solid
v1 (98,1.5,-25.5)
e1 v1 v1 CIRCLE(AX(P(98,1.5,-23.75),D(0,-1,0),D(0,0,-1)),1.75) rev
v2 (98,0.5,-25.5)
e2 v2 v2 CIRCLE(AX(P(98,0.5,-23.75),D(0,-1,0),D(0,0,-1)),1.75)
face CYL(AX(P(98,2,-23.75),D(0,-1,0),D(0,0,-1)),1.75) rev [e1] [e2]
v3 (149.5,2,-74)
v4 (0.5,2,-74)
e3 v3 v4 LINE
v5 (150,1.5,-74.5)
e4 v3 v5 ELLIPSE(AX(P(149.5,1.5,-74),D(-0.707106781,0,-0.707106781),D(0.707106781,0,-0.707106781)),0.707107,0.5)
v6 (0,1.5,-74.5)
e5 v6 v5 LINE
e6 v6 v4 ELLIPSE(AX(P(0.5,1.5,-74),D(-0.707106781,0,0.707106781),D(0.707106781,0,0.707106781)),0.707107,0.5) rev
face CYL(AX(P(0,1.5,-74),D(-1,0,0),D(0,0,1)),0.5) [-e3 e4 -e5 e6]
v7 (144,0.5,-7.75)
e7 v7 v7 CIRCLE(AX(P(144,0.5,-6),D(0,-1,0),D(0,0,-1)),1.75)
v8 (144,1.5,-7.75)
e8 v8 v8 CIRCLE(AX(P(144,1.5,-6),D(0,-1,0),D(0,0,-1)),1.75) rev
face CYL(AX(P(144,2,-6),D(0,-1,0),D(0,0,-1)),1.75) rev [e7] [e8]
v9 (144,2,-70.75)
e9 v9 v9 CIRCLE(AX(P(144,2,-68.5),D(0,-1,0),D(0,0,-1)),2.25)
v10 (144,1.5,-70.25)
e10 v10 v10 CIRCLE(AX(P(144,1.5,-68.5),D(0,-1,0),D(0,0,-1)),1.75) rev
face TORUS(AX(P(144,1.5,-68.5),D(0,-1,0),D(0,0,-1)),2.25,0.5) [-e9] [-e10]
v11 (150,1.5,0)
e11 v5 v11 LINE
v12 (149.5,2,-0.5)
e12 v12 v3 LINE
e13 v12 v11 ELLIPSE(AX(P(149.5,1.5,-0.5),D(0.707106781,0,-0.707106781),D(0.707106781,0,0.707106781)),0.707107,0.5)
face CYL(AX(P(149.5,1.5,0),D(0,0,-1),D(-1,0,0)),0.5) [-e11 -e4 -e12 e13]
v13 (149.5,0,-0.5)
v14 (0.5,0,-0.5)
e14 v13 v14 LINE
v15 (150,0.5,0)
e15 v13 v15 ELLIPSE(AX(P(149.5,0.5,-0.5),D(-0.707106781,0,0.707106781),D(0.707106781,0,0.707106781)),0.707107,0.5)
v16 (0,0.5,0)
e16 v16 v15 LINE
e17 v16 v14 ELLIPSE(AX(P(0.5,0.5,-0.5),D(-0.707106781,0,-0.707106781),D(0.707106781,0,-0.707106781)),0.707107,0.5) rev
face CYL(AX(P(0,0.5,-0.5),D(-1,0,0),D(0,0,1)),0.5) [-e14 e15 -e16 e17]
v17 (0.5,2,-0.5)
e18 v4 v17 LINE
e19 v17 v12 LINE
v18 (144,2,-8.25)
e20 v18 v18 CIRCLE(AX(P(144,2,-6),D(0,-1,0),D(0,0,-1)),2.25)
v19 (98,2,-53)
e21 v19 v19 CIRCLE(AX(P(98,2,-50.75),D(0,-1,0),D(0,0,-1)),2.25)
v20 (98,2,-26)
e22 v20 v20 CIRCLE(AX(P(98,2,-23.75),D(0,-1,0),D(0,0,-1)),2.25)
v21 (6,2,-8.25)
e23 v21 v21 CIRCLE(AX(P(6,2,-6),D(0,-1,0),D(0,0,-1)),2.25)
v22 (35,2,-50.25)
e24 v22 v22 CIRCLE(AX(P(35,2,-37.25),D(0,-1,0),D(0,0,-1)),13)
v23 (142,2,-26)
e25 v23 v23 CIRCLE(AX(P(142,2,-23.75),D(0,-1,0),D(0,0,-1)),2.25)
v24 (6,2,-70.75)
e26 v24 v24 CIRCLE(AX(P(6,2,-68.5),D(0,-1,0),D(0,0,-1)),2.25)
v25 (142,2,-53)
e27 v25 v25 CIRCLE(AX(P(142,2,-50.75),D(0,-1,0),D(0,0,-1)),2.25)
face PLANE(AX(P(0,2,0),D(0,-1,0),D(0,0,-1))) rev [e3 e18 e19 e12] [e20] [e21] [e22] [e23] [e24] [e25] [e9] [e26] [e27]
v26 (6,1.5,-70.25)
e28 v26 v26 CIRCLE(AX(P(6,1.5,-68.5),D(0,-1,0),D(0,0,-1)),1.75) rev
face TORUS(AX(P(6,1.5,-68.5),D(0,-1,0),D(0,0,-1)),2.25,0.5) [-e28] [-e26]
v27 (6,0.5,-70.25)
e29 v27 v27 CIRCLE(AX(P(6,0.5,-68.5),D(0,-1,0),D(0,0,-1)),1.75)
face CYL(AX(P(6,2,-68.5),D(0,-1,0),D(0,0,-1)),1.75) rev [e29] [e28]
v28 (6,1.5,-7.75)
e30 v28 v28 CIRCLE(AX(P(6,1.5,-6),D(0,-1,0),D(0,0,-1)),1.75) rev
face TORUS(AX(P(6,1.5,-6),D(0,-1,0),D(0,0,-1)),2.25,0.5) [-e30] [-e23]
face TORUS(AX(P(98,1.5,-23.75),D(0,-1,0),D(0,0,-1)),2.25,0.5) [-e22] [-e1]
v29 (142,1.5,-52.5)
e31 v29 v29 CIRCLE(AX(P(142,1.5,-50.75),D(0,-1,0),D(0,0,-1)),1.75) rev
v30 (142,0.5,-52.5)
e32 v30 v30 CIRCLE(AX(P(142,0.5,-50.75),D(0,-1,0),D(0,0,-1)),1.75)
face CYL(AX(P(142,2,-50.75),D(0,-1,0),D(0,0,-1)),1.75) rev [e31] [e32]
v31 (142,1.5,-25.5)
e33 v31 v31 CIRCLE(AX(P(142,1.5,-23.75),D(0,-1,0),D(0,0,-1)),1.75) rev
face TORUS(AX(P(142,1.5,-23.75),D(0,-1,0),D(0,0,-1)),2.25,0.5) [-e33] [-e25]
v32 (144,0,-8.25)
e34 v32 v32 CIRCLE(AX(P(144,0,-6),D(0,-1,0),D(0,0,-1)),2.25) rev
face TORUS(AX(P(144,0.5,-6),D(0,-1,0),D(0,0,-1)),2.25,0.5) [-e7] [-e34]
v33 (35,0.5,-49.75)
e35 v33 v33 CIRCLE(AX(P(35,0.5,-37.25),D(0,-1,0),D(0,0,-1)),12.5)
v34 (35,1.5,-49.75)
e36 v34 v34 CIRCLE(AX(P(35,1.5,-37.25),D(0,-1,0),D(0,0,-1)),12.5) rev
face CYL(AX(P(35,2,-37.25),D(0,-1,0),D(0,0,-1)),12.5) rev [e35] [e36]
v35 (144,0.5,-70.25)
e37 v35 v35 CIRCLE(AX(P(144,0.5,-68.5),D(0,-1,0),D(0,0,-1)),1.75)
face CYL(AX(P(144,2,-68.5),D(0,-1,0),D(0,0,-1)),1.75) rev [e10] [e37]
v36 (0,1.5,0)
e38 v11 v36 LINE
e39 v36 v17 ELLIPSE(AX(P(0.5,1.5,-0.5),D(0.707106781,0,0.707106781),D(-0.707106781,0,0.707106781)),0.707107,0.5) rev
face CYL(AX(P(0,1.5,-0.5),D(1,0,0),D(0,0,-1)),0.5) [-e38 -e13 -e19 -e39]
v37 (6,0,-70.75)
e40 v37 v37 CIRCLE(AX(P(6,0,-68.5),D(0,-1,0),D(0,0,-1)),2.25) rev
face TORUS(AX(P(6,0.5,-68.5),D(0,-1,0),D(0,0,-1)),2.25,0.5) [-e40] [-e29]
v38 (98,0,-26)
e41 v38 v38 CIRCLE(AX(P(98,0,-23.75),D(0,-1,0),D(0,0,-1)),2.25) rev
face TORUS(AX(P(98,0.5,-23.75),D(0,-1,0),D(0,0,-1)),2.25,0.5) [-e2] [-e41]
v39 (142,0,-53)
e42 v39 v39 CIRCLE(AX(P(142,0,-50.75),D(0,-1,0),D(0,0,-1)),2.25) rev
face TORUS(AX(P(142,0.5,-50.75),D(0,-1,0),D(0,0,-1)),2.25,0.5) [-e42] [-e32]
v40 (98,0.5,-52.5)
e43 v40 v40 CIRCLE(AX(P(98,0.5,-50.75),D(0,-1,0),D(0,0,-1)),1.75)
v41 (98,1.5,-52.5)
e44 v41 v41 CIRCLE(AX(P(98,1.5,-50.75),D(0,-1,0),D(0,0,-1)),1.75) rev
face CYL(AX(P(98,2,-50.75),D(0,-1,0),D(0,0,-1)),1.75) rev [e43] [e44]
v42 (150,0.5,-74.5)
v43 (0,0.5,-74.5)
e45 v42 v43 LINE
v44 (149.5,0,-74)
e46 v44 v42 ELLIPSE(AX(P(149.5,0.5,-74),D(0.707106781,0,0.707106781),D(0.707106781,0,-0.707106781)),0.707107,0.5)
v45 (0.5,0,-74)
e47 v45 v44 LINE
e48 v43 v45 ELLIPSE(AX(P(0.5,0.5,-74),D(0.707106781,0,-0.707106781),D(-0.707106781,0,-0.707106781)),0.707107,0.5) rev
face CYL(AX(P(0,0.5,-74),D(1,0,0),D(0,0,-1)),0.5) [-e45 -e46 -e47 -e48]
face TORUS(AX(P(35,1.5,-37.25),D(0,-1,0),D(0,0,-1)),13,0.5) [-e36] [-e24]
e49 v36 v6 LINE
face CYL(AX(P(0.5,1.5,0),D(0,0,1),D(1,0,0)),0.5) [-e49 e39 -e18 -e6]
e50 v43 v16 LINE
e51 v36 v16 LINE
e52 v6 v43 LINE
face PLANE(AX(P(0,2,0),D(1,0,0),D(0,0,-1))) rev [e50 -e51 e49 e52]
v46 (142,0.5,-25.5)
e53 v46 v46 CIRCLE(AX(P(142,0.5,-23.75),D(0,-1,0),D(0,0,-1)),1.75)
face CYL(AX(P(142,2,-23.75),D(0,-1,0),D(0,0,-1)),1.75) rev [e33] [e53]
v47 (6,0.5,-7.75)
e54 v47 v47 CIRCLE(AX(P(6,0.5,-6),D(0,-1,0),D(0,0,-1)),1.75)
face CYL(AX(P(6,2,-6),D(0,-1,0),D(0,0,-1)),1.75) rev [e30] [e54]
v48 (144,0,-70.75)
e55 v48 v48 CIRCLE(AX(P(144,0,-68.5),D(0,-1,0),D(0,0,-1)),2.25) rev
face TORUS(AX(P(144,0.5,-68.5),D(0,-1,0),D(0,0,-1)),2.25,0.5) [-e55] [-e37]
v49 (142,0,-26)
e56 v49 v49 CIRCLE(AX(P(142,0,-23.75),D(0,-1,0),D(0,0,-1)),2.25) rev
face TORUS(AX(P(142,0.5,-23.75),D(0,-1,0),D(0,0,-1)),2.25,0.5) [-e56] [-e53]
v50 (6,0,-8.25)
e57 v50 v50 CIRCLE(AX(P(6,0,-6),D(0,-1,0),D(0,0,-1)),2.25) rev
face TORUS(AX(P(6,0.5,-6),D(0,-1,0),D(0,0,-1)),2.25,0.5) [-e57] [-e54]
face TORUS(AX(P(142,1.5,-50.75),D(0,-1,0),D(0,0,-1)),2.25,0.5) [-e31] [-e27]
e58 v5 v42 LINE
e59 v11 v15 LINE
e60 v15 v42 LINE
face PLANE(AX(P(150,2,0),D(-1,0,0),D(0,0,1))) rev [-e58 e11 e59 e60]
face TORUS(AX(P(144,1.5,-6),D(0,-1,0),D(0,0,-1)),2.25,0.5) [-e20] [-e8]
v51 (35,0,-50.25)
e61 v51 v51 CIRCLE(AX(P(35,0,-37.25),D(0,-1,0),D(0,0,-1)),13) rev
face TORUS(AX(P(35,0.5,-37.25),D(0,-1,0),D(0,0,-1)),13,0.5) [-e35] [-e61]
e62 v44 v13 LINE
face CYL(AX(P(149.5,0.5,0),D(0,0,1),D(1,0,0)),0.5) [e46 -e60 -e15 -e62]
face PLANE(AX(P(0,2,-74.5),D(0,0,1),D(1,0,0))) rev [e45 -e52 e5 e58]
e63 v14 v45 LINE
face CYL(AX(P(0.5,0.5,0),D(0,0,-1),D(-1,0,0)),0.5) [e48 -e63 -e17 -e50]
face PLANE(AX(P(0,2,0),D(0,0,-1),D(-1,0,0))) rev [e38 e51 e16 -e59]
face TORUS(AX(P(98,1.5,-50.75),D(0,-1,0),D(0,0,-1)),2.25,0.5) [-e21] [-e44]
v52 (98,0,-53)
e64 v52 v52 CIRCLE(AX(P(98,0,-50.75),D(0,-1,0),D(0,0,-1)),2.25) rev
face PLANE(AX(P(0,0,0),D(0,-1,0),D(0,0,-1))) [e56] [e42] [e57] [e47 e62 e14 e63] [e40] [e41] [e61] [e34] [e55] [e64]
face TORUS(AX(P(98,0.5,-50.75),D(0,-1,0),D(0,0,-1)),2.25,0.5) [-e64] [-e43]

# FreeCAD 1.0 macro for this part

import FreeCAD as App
import Part
import Sketcher
from FreeCAD import Vector
Q = App.Units.Quantity


def edges_at(feature, points):
    """Names of the edges that pass closest to the given points."""
    edges = feature.Shape.Edges
    near = lambda p: min(range(len(edges)), key=lambda i: edges[i].distToShape(Part.Vertex(*p))[0])
    return sorted({f"Edge{near(p) + 1}" for p in points})

doc = App.newDocument("Part")
body = doc.addObject("PartDesign::Body", "Body")

# Sketch on XZ plane
sketch1 = body.newObject("Sketcher::SketchObject", "Sketch")
sketch1.AttachmentSupport = (doc.getObject("XZ_Plane"), [""])
sketch1.MapMode = "FlatFace"
sketch1.addGeometry(Part.LineSegment(Vector(0, -74.5, 0), Vector(0, 0, 0)), False)
sketch1.addGeometry(Part.LineSegment(Vector(0, 0, 0), Vector(150, 0, 0)), False)
sketch1.addGeometry(Part.LineSegment(Vector(150, 0, 0), Vector(150, -74.5, 0)), False)
sketch1.addGeometry(Part.LineSegment(Vector(150, -74.5, 0), Vector(0, -74.5, 0)), False)
sketch1.addGeometry(Part.Circle(Vector(6, -6, 0), Vector(0, 0, 1), 1.8), False)
sketch1.addGeometry(Part.Circle(Vector(144, -6, 0), Vector(0, 0, 1), 1.8), False)
sketch1.addGeometry(Part.Circle(Vector(98, -23.8, 0), Vector(0, 0, 1), 1.8), False)
sketch1.addGeometry(Part.Circle(Vector(142, -23.8, 0), Vector(0, 0, 1), 1.8), False)
sketch1.addGeometry(Part.Circle(Vector(35, -37.2, 0), Vector(0, 0, 1), 12.5), False)
sketch1.addGeometry(Part.Circle(Vector(6, -68.5, 0), Vector(0, 0, 1), 1.8), False)
sketch1.addGeometry(Part.Circle(Vector(98, -50.8, 0), Vector(0, 0, 1), 1.8), False)
sketch1.addGeometry(Part.Circle(Vector(142, -50.8, 0), Vector(0, 0, 1), 1.8), False)
sketch1.addGeometry(Part.Circle(Vector(144, -68.5, 0), Vector(0, 0, 1), 1.8), False)
sketch1.addConstraint(Sketcher.Constraint("Coincident", 0, 2, 1, 1))
sketch1.addConstraint(Sketcher.Constraint("Coincident", 1, 2, 2, 1))
sketch1.addConstraint(Sketcher.Constraint("Coincident", 2, 2, 3, 1))
sketch1.addConstraint(Sketcher.Constraint("Coincident", 3, 2, 0, 1))
sketch1.addConstraint(Sketcher.Constraint("Vertical", 0))
sketch1.addConstraint(Sketcher.Constraint("Horizontal", 1))
sketch1.addConstraint(Sketcher.Constraint("Vertical", 2))
sketch1.addConstraint(Sketcher.Constraint("Horizontal", 3))
sketch1.addConstraint(Sketcher.Constraint("Coincident", 0, 2, -1, 1))
sketch1.addConstraint(Sketcher.Constraint("Equal", 4, 5))
sketch1.addConstraint(Sketcher.Constraint("Equal", 5, 6))
sketch1.addConstraint(Sketcher.Constraint("Equal", 6, 7))
sketch1.addConstraint(Sketcher.Constraint("Equal", 7, 9))
sketch1.addConstraint(Sketcher.Constraint("Equal", 9, 10))
sketch1.addConstraint(Sketcher.Constraint("Equal", 10, 11))
sketch1.addConstraint(Sketcher.Constraint("Equal", 11, 12))
sketch1.addConstraint(Sketcher.Constraint("Horizontal", 4, 3, 5, 3))
sketch1.addConstraint(Sketcher.Constraint("Horizontal", 6, 3, 7, 3))
sketch1.addConstraint(Sketcher.Constraint("Horizontal", 10, 3, 11, 3))
sketch1.addConstraint(Sketcher.Constraint("Horizontal", 9, 3, 12, 3))
sketch1.addConstraint(Sketcher.Constraint("Vertical", 4, 3, 9, 3))
sketch1.addConstraint(Sketcher.Constraint("Vertical", 6, 3, 10, 3))
sketch1.addConstraint(Sketcher.Constraint("Vertical", 7, 3, 11, 3))
sketch1.addConstraint(Sketcher.Constraint("Vertical", 5, 3, 12, 3))
sketch1.addConstraint(Sketcher.Constraint("Diameter", 8, Q("25 mm")))
sketch1.addConstraint(Sketcher.Constraint("Diameter", 4, Q("3.5 mm")))
sketch1.addConstraint(Sketcher.Constraint("DistanceX", 1, 1, 1, 2, Q("150 mm")))
sketch1.addConstraint(Sketcher.Constraint("DistanceY", 0, 1, 0, 2, Q("74.5 mm")))
sketch1.addConstraint(Sketcher.Constraint("DistanceX", -1, 1, 4, 3, Q("6 mm")))
sketch1.addConstraint(Sketcher.Constraint("DistanceY", 4, 3, -1, 1, Q("6 mm")))
sketch1.addConstraint(Sketcher.Constraint("DistanceX", -1, 1, 5, 3, Q("144 mm")))
sketch1.addConstraint(Sketcher.Constraint("DistanceX", -1, 1, 6, 3, Q("98 mm")))
sketch1.addConstraint(Sketcher.Constraint("DistanceX", -1, 1, 7, 3, Q("142 mm")))
sketch1.addConstraint(Sketcher.Constraint("DistanceX", -1, 1, 8, 3, Q("35 mm")))
sketch1.addConstraint(Sketcher.Constraint("DistanceY", 10, 3, 6, 3, Q("27 mm")))
sketch1.addConstraint(Sketcher.Constraint("DistanceY", 2, 2, 12, 3, Q("6 mm")))
sketch1.addConstraint(Sketcher.Constraint("DistanceY", 8, 3, 6, 3, Q("13.5 mm")))
sketch1.addConstraint(Sketcher.Constraint("DistanceY", 6, 3, -1, 1, Q("23.75 mm")))
pad1 = body.newObject("PartDesign::Pad", "Pad")
pad1.Profile = sketch1
pad1.Length = 2
pad1.Reversed = True
doc.recompute()

fillet = body.newObject("PartDesign::Fillet", "Fillet")
fillet.Base = (pad1, edges_at(pad1, [
    (144, 0, -7.75),
    (144, 2, -7.75),
    (150, 2, -37.25),
    (144, 0, -70.25),
    (144, 2, -70.25),
    (75, 2, -74.5),
    (35, 0, -49.75),
    (35, 2, -49.75),
    (6, 0, -70.25),
    (6, 2, -70.25),
    (6, 0, -7.75),
    (6, 2, -7.75),
    (98, 0, -52.5),
    (98, 2, -52.5),
    (142, 0, -52.5),
    (142, 2, -52.5),
    (142, 0, -25.5),
    (142, 2, -25.5),
    (98, 0, -25.5),
    (98, 2, -25.5),
    (0, 2, -37.25),
    (75, 0, -74.5),
    (150, 0, -37.25),
    (75, 0, 0),
    (0, 0, -37.25),
    (75, 2, 0),
]))
fillet.Radius = 0.5

doc.recompute()
